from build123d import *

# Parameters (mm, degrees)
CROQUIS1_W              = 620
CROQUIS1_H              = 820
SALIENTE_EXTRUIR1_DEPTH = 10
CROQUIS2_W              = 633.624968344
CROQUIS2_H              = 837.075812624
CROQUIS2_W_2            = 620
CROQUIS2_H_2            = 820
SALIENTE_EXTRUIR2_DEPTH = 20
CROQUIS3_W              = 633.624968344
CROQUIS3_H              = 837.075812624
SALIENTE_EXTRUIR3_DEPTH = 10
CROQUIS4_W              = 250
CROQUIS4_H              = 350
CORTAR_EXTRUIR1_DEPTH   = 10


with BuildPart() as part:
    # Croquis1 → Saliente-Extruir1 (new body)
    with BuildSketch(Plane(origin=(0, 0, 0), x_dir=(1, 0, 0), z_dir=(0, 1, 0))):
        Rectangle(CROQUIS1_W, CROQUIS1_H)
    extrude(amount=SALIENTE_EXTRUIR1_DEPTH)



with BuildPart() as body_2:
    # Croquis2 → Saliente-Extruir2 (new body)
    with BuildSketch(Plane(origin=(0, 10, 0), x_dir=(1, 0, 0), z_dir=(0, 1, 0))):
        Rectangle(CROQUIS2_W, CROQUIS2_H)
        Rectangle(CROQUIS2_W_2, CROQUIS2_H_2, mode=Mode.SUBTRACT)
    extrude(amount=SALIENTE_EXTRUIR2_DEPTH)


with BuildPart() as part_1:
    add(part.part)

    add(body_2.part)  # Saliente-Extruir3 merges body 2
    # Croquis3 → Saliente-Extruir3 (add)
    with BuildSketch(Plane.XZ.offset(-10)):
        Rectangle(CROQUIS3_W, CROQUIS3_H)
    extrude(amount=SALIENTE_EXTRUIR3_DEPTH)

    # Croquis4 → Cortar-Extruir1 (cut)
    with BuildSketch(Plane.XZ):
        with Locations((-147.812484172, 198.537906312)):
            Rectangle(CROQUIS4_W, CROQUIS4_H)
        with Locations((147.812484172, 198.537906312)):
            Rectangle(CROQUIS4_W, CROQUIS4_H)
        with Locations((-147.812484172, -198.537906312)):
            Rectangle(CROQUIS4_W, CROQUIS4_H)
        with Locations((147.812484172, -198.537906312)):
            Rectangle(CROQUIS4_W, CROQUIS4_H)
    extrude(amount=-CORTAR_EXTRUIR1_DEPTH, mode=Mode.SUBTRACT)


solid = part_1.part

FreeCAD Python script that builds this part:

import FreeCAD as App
import Part
import Sketcher

V = App.Vector


def add_polygon(sketch, points):
    """Adds a closed chain of lines whose ends are joined by coincident constraints."""
    first, n = sketch.GeometryCount, len(points)
    for a, b in zip(points, points[1:] + points[:1]):
        sketch.addGeometry(Part.LineSegment(App.Vector(*a, 0), App.Vector(*b, 0)), False)
    for i in range(n):
        sketch.addConstraint(Sketcher.Constraint("Coincident", first + i, 2, first + (i + 1) % n, 1))

doc = App.newDocument("Part")
body = doc.addObject("PartDesign::Body", "Body")

sketch1 = body.newObject("Sketcher::SketchObject", "Sketch")
sketch1.AttachmentSupport = (doc.getObject("XZ_Plane"), [""])
sketch1.MapMode = "FlatFace"
add_polygon(sketch1, [(-310, -410), (-310, 410), (310, 410), (310, -410)])
sketch1.addConstraint([
    Sketcher.Constraint("Vertical", 0),
    Sketcher.Constraint("Horizontal", 1),
    Sketcher.Constraint("Vertical", 2),
    Sketcher.Constraint("Horizontal", 3),
    Sketcher.Constraint("Symmetric", 0, 2, 2, 2, -1, 1),
    Sketcher.Constraint("DistanceX", 1, 1, 1, 2, 620.0),
    Sketcher.Constraint("DistanceY", 0, 1, 0, 2, 820.0),
])
pad1 = body.newObject("PartDesign::Pad", "Pad")
pad1.Profile = sketch1
pad1.Length = 10
pad1.Reversed = True
body2 = doc.addObject("PartDesign::Body", "Body001")

sketch2 = body2.newObject("Sketcher::SketchObject", "Sketch001")
sketch2.AttachmentSupport = (doc.getObject("XZ_Plane001"), [""])
sketch2.MapMode = "FlatFace"
sketch2.AttachmentOffset = App.Placement(V(0, 0, -10), App.Rotation())
add_polygon(sketch2, [(-316.812484, -418.537906), (-316.812484, 418.537906), (316.812484, 418.537906), (316.812484, -418.537906)])
add_polygon(sketch2, [(310, 410), (-310, 410), (-310, -410), (310, -410)])
sketch2.addConstraint([
    Sketcher.Constraint("Vertical", 0),
    Sketcher.Constraint("Horizontal", 1),
    Sketcher.Constraint("Vertical", 2),
    Sketcher.Constraint("Horizontal", 3),
    Sketcher.Constraint("Horizontal", 4),
    Sketcher.Constraint("Vertical", 5),
    Sketcher.Constraint("Horizontal", 6),
    Sketcher.Constraint("Vertical", 7),
    Sketcher.Constraint("Symmetric", 0, 2, 2, 2, -1, 1),
    Sketcher.Constraint("Symmetric", 4, 2, 6, 2, -1, 1),
    Sketcher.Constraint("DistanceX", 4, 2, 4, 1, 620.0),
    Sketcher.Constraint("DistanceY", 5, 2, 5, 1, 820.0),
    Sketcher.Constraint("DistanceX", 1, 1, 1, 2, 633.624968),
    Sketcher.Constraint("DistanceY", 0, 1, 0, 2, 837.075813),
])
pad2 = body2.newObject("PartDesign::Pad", "Pad001")
pad2.Profile = sketch2
pad2.Length = 20
pad2.Reversed = True
body.AllowCompound = True
doc.recompute()

boolean = body.newObject("PartDesign::Boolean", "Boolean")
boolean.Type = "Fuse"
boolean.addObjects([body2])

sketch3 = body.newObject("Sketcher::SketchObject", "Sketch002")
sketch3.AttachmentSupport = (doc.getObject("XZ_Plane"), [""])
sketch3.MapMode = "FlatFace"
sketch3.AttachmentOffset = App.Placement(V(0, 0, -10), App.Rotation())
add_polygon(sketch3, [(-316.812484, 418.537906), (-316.812484, -418.537906), (316.812484, -418.537906), (316.812484, 418.537906)])
sketch3.addConstraint([
    Sketcher.Constraint("Vertical", 0),
    Sketcher.Constraint("Horizontal", 1),
    Sketcher.Constraint("Vertical", 2),
    Sketcher.Constraint("Horizontal", 3),
    Sketcher.Constraint("Symmetric", 0, 2, 2, 2, -1, 1),
    Sketcher.Constraint("DistanceX", 1, 1, 1, 2, 633.624968),
    Sketcher.Constraint("DistanceY", 0, 2, 0, 1, 837.075813),
])
pad3 = body.newObject("PartDesign::Pad", "Pad002")
pad3.Profile = sketch3
pad3.Length = 10

sketch4 = body.newObject("Sketcher::SketchObject", "Sketch003")
sketch4.AttachmentSupport = (doc.getObject("XZ_Plane"), [""])
sketch4.MapMode = "FlatFace"
add_polygon(sketch4, [(-272.812484, 373.537906), (-272.812484, 23.537906), (-22.812484, 23.537906), (-22.812484, 373.537906)])
add_polygon(sketch4, [(22.812484, 373.537906), (22.812484, 23.537906), (272.812484, 23.537906), (272.812484, 373.537906)])
add_polygon(sketch4, [(-272.812484, -23.537906), (-272.812484, -373.537906), (-22.812484, -373.537906), (-22.812484, -23.537906)])
add_polygon(sketch4, [(22.812484, -23.537906), (22.812484, -373.537906), (272.812484, -373.537906), (272.812484, -23.537906)])
sketch4.addConstraint([
    Sketcher.Constraint("Vertical", 0),
    Sketcher.Constraint("Horizontal", 1),
    Sketcher.Constraint("Vertical", 2),
    Sketcher.Constraint("Horizontal", 3),
    Sketcher.Constraint("Vertical", 4),
    Sketcher.Constraint("Horizontal", 5),
    Sketcher.Constraint("Vertical", 6),
    Sketcher.Constraint("Horizontal", 7),
    Sketcher.Constraint("Vertical", 8),
    Sketcher.Constraint("Horizontal", 9),
    Sketcher.Constraint("Vertical", 10),
    Sketcher.Constraint("Horizontal", 11),
    Sketcher.Constraint("Vertical", 12),
    Sketcher.Constraint("Horizontal", 13),
    Sketcher.Constraint("Vertical", 14),
    Sketcher.Constraint("Horizontal", 15),
    Sketcher.Constraint("Symmetric", 6, 2, 8, 2, -1, 1),
    Sketcher.Constraint("Symmetric", 4, 2, 10, 2, -1, 1),
    Sketcher.Constraint("Symmetric", 2, 2, 12, 2, -1, 1),
    Sketcher.Constraint("Symmetric", 0, 2, 14, 2, -1, 1),
    Sketcher.Constraint("Symmetric", 1, 2, 4, 2, -2),
    Sketcher.Constraint("Symmetric", 3, 2, 6, 2, -2),
    Sketcher.Constraint("DistanceX", 1, 1, 1, 2, 250.0),
    Sketcher.Constraint("DistanceY", 0, 2, 0, 1, 350.0),
    Sketcher.Constraint("DistanceX", 1, 2, 4, 2, 45.624968),
    Sketcher.Constraint("DistanceY", -1, 1, 0, 2, 23.537906),
])
pocket1 = body.newObject("PartDesign::Pocket", "Pocket")
pocket1.Profile = sketch4
pocket1.Length = 10

doc.recompute()
